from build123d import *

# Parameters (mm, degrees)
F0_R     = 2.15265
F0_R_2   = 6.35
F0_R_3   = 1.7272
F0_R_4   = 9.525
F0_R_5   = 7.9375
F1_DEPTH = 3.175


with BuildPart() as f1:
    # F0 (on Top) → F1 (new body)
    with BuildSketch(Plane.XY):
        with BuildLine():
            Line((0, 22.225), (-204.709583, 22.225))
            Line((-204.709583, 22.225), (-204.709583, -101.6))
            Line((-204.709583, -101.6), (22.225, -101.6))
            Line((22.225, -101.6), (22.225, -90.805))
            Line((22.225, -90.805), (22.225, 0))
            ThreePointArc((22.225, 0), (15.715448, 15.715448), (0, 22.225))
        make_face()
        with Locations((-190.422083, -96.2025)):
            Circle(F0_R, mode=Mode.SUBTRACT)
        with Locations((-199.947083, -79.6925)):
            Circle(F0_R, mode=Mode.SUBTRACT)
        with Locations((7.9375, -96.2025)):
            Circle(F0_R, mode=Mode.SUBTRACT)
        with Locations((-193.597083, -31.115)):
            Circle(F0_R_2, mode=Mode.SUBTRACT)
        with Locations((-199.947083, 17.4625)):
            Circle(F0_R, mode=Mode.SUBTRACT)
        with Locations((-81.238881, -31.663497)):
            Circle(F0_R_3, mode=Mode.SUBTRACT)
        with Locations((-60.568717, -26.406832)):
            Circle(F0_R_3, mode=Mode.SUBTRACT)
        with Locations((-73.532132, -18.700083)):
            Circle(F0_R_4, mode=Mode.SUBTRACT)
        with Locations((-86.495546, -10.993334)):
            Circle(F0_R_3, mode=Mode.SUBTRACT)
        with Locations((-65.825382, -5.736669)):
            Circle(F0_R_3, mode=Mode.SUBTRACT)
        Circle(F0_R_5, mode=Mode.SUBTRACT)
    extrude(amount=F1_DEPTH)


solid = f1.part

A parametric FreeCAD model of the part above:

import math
import FreeCAD as App
import Part
import Sketcher

V = App.Vector
Q = App.Units.Quantity

doc = App.newDocument("Part")
params = doc.addObject("Spreadsheet::Sheet", "Params")
for row, (alias, value) in enumerate([
    ("sketch1_diameter", "0.5 in"),
    ("sketch1_diameter2", "0.75 in"),
    ("sketch1_height", "4 in"),
    ("sketch1_diameter3", "0.136 in"),
    ("sketch1_diameter4", "0.625 in"),
    ("pad1_length", "0.125 in"),
], start=1):
    params.set(f"A{row}", alias)
    params.set(f"B{row}", "=" + value)
    params.setAlias(f"B{row}", alias)

body = doc.addObject("PartDesign::Body", "Body")

sketch1 = body.newObject("Sketcher::SketchObject", "Sketch")
sketch1.AttachmentSupport = (doc.getObject("XY_Plane"), [""])
sketch1.MapMode = "FlatFace"
sketch1.addGeometry(Part.LineSegment(V(0, 22.2, 0), V(-204.7, 22.2, 0)), False)
sketch1.addGeometry(Part.LineSegment(V(-204.7, 22.2, 0), V(-204.7, -101.6, 0)), False)
sketch1.addGeometry(Part.LineSegment(V(-204.7, -101.6, 0), V(22.2, -101.6, 0)), False)
sketch1.addGeometry(Part.LineSegment(V(22.2, -101.6, 0), V(22.2, 0, 0)), False)
sketch1.addGeometry(Part.ArcOfCircle(Part.Circle(V(0, 0, 0), V(0, 0, 1), 22.2), math.radians(0), math.radians(90)), False)
sketch1.addGeometry(Part.Circle(V(-190.4, -96.2, 0), V(0, 0, 1), 2.2), False)
sketch1.addGeometry(Part.Circle(V(-199.9, -79.7, 0), V(0, 0, 1), 2.2), False)
sketch1.addGeometry(Part.Circle(V(7.9, -96.2, 0), V(0, 0, 1), 2.2), False)
sketch1.addGeometry(Part.Circle(V(-193.6, -31.1, 0), V(0, 0, 1), 6.3), False)
sketch1.addGeometry(Part.Circle(V(-199.9, 17.5, 0), V(0, 0, 1), 2.2), False)
sketch1.addGeometry(Part.Circle(V(-81.2, -31.7, 0), V(0, 0, 1), 1.7), False)
sketch1.addGeometry(Part.Circle(V(-60.6, -26.4, 0), V(0, 0, 1), 1.7), False)
sketch1.addGeometry(Part.Circle(V(-73.5, -18.7, 0), V(0, 0, 1), 9.5), False)
sketch1.addGeometry(Part.Circle(V(-86.5, -11, 0), V(0, 0, 1), 1.7), False)
sketch1.addGeometry(Part.Circle(V(-65.8, -5.7, 0), V(0, 0, 1), 1.7), False)
sketch1.addGeometry(Part.Circle(V(0, 0, 0), V(0, 0, 1), 7.9), False)
sketch1.addConstraint(Sketcher.Constraint("Coincident", 0, 2, 1, 1))
sketch1.addConstraint(Sketcher.Constraint("Coincident", 1, 2, 2, 1))
sketch1.addConstraint(Sketcher.Constraint("Coincident", 2, 2, 3, 1))
sketch1.addConstraint(Sketcher.Constraint("Tangent", 3, 2, 4, 1))
sketch1.addConstraint(Sketcher.Constraint("Tangent", 4, 2, 0, 1))
sketch1.addConstraint(Sketcher.Constraint("Horizontal", 0))
sketch1.addConstraint(Sketcher.Constraint("Vertical", 1))
sketch1.addConstraint(Sketcher.Constraint("Horizontal", 2))
sketch1.addConstraint(Sketcher.Constraint("Vertical", 3))
sketch1.addConstraint(Sketcher.Constraint("Coincident", 4, 3, -1, 1))
sketch1.addConstraint(Sketcher.Constraint("Coincident", 15, 3, -1, 1))
sketch1.addConstraint(Sketcher.Constraint("Equal", 5, 6))
sketch1.addConstraint(Sketcher.Constraint("Equal", 6, 7))
sketch1.addConstraint(Sketcher.Constraint("Equal", 7, 9))
sketch1.addConstraint(Sketcher.Constraint("Equal", 10, 11))
sketch1.addConstraint(Sketcher.Constraint("Equal", 11, 13))
sketch1.addConstraint(Sketcher.Constraint("Equal", 13, 14))
sketch1.addConstraint(Sketcher.Constraint("Horizontal", 5, 3, 7, 3))
sketch1.addConstraint(Sketcher.Constraint("Vertical", 6, 3, 9, 3))
sketch1.addConstraint(Sketcher.Constraint("Diameter", 8, Q("0.5 in")))
sketch1.addConstraint(Sketcher.Constraint("Diameter", 12, Q("0.75 in")))
sketch1.addConstraint(Sketcher.Constraint("DistanceY", 3, 1, 3, 2, Q("4 in")))
sketch1.addConstraint(Sketcher.Constraint("Diameter", 10, Q("0.136 in")))
sketch1.addConstraint(Sketcher.Constraint("Diameter", 15, Q("0.625 in")))
sketch1.addConstraint(Sketcher.Constraint("Radius", 4, Q("0.875 in")))
sketch1.addConstraint(Sketcher.Constraint("Diameter", 5, Q("0.1695 in")))
sketch1.addConstraint(Sketcher.Constraint("DistanceY", 8, 3, 0, 2, Q("2.1 in")))
sketch1.addConstraint(Sketcher.Constraint("DistanceY", 5, 3, 6, 3, Q("0.65 in")))
sketch1.addConstraint(Sketcher.Constraint("DistanceX", 6, 3, 8, 3, Q("0.25 in")))
sketch1.addConstraint(Sketcher.Constraint("DistanceX", -1, 1, 7, 3, Q("0.3125 in")))
sketch1.addConstraint(Sketcher.Constraint("DistanceY", -1, 1, 9, 3, Q("0.6875 in")))
sketch1.addConstraint(Sketcher.Constraint("DistanceX", 6, 3, 5, 3, Q("0.375 in")))
sketch1.addConstraint(Sketcher.Constraint("DistanceY", 5, 3, 8, 3, Q("2.5625 in")))
sketch1.addConstraint(Sketcher.Constraint("DistanceX", 0, 2, 9, 3, Q("0.1875 in")))
sketch1.addConstraint(Sketcher.Constraint("DistanceX", 8, 3, 10, 3, Q("112.358202 mm")))
sketch1.addConstraint(Sketcher.Constraint("DistanceX", 10, 3, 14, 3, Q("15.413499 mm")))
sketch1.addConstraint(Sketcher.Constraint("DistanceX", 0, 2, 0, 1, Q("204.709583 mm")))
sketch1.addConstraint(Sketcher.Constraint("DistanceY", 14, 3, -1, 1, Q("5.736669 mm")))
sketch1.addConstraint(Sketcher.Constraint("DistanceY", 11, 3, 4, 3, Q("26.406831 mm")))
sketch1.addConstraint(Sketcher.Constraint("DistanceX", 10, 3, 12, 3, Q("7.706749 mm")))
sketch1.addConstraint(Sketcher.Constraint("DistanceY", 11, 3, 12, 3, Q("7.706749 mm")))
sketch1.addConstraint(Sketcher.Constraint("DistanceY", 12, 3, 13, 3, Q("7.706749 mm")))
sketch1.addConstraint(Sketcher.Constraint("DistanceX", 13, 3, 11, 3, Q("25.926829 mm")))
sketch1.addConstraint(Sketcher.Constraint("DistanceY", 10, 3, 14, 3, Q("25.926828 mm")))
sketch1.addConstraint(Sketcher.Constraint("DistanceX", 11, 3, -1, 1, Q("60.568717 mm")))
sketch1.setExpression("Constraints[19]", "Params.sketch1_diameter")
sketch1.setExpression("Constraints[20]", "Params.sketch1_diameter2")
sketch1.setExpression("Constraints[21]", "Params.sketch1_height")
sketch1.setExpression("Constraints[22]", "Params.sketch1_diameter3")
sketch1.setExpression("Constraints[23]", "Params.sketch1_diameter4")
pad1 = body.newObject("PartDesign::Pad", "Pad")
pad1.Profile = sketch1
pad1.setExpression("Length", "Params.pad1_length")

doc.recompute()
